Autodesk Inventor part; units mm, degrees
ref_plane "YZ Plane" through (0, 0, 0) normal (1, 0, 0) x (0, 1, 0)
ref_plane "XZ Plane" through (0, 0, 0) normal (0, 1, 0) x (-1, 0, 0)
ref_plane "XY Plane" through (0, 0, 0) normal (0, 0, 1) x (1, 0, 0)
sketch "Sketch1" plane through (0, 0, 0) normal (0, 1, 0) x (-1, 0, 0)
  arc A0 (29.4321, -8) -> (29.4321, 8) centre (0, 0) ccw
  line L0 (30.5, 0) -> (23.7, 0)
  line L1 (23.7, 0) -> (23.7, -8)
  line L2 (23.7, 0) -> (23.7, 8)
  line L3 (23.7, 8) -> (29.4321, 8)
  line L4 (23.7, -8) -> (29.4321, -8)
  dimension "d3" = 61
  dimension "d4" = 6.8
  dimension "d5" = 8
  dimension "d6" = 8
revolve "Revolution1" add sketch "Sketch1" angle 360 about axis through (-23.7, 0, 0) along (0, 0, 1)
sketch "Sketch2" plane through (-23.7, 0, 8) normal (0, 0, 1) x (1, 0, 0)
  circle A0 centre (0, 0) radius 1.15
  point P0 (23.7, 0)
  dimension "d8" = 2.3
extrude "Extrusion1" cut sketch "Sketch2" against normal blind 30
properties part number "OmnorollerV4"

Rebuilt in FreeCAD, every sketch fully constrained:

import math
import FreeCAD as App
import Part
import Sketcher

doc = App.newDocument("Part")
body = doc.addObject("PartDesign::Body", "Body")

# Sketch on XZ plane
sketch1 = doc.addObject("Sketcher::SketchObject", "Sketch")
body.addObject(sketch1)
sketch1.AttachmentSupport = (doc.XZ_Plane, [""])
sketch1.MapMode = "FlatFace"
sketch1.addGeometry([
    Part.LineSegment(App.Vector(-24, -8, 0), App.Vector(-29, -8, 0)),
    Part.ArcOfCircle(Part.Circle(App.Vector(0, 0, 0), App.Vector(0, 0, 1), 30), math.radians(165), math.radians(195)),
    Part.LineSegment(App.Vector(-29, 8, 0), App.Vector(-24, 8, 0)),
    Part.LineSegment(App.Vector(-24, 8, 0), App.Vector(-24, -8, 0)),
], False)
sketch1.addGeometry(Part.LineSegment(App.Vector(-24, -8, 0), App.Vector(-24, 8, 0)), True)  # axis
sketch1.addConstraint([
    Sketcher.Constraint("Coincident", 0, 2, 1, 2),
    Sketcher.Constraint("Coincident", 1, 1, 2, 1),
    Sketcher.Constraint("Coincident", 2, 2, 3, 1),
    Sketcher.Constraint("Coincident", 3, 2, 0, 1),
    Sketcher.Constraint("Horizontal", 0),
    Sketcher.Constraint("Horizontal", 2),
    Sketcher.Constraint("Vertical", 3),
    Sketcher.Constraint("Vertical", 4),
    Sketcher.Constraint("Coincident", 1, 3, -1, 1),
    Sketcher.Constraint("Coincident", 4, 1, 3, 2),
    Sketcher.Constraint("Horizontal", 1, 1, 4, 2),
    Sketcher.Constraint("Vertical", 0, 2, 1, 1),
    Sketcher.Constraint("Radius", 1, 30.5),
    Sketcher.Constraint("DistanceY", 0, 2, -1, 1, 8.0),
    Sketcher.Constraint("DistanceX", 2, 2, -1, 1, 23.7),
])
revolution = doc.addObject("PartDesign::Revolution", "Revolution")
body.addObject(revolution)
revolution.Profile = sketch1
revolution.ReferenceAxis = (sketch1, ["Axis0"])
revolution.Angle = 360

# Sketch on XY plane
sketch2 = doc.addObject("Sketcher::SketchObject", "Sketch001")
body.addObject(sketch2)
sketch2.AttachmentSupport = (doc.XY_Plane, [""])
sketch2.MapMode = "FlatFace"
sketch2.AttachmentOffset = App.Placement(App.Vector(0, 0, 8), App.Rotation())
sketch2.addGeometry(Part.Circle(App.Vector(-23.7, 0, 0), App.Vector(0, 0, 1), 1.1), False)
sketch2.addConstraint([
    Sketcher.Constraint("PointOnObject", 0, 3, -1),
    Sketcher.Constraint("Diameter", 0, 2.3),
    Sketcher.Constraint("DistanceX", 0, 3, -1, 1, 23.7),
])
pocket1 = doc.addObject("PartDesign::Pocket", "Pocket")
body.addObject(pocket1)
pocket1.Profile = sketch2
pocket1.Length = 30

doc.recompute()
